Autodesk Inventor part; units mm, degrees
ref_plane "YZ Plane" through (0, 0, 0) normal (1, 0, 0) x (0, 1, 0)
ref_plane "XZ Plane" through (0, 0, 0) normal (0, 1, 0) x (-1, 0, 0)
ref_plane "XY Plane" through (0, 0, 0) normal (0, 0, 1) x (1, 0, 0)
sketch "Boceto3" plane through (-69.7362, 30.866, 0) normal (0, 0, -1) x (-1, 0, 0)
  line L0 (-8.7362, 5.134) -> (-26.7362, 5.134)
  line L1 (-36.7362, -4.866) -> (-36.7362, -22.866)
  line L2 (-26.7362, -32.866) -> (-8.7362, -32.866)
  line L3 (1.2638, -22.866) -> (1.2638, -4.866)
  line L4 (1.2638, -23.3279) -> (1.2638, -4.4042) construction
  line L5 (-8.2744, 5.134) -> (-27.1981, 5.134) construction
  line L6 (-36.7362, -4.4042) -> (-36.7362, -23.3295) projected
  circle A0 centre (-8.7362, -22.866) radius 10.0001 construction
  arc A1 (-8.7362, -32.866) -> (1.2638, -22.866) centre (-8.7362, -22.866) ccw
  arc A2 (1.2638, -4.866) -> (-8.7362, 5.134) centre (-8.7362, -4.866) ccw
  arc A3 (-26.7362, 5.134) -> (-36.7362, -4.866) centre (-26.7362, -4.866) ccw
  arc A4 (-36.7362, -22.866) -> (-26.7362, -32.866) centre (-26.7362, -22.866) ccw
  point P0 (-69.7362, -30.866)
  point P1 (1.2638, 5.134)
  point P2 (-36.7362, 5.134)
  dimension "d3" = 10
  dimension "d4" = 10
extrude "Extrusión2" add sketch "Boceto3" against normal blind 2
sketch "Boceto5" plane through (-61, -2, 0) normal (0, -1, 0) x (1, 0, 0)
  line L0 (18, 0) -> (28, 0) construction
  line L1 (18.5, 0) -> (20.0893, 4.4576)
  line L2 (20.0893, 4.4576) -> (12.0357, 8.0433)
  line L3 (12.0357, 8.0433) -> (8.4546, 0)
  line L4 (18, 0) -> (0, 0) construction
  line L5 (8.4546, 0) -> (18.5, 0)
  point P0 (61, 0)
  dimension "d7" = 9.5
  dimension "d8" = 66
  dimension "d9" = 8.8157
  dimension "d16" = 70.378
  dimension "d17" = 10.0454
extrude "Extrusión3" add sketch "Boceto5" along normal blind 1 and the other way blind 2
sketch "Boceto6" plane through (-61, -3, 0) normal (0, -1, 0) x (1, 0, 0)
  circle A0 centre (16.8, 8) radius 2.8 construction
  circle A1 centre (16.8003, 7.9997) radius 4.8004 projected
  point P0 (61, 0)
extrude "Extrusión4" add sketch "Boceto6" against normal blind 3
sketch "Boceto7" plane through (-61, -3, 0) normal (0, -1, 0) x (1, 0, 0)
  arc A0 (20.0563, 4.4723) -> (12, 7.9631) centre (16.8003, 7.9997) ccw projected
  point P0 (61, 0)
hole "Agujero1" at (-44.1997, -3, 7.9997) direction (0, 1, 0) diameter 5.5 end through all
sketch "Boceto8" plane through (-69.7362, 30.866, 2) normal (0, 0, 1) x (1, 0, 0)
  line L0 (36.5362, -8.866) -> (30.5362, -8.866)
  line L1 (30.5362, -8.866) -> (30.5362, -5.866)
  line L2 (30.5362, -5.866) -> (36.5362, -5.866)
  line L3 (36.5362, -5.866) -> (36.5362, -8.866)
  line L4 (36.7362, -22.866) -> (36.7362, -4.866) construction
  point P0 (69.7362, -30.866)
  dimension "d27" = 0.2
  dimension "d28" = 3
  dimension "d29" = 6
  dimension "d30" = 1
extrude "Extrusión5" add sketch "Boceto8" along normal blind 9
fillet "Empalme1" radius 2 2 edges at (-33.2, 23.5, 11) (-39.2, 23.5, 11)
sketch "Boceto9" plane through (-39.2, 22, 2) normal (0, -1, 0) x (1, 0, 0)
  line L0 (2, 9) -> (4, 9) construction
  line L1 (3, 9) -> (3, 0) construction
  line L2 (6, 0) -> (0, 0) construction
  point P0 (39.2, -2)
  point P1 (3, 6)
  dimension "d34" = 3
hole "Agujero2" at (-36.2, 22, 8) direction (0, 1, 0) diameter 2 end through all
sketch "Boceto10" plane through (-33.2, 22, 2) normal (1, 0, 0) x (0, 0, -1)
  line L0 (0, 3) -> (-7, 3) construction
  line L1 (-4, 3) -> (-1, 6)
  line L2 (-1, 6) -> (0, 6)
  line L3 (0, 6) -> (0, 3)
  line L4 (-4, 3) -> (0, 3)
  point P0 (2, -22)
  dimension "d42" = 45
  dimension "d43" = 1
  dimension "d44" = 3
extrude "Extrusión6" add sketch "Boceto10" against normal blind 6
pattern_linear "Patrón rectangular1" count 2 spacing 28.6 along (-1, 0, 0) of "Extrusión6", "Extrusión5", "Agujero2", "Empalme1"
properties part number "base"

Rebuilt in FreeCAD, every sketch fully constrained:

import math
import FreeCAD as App
import Part
import Sketcher
Q = App.Units.Quantity


def edges_at(feature, points):
    """Names of the edges that pass closest to the given points."""
    edges = feature.Shape.Edges
    near = lambda p: min(range(len(edges)), key=lambda i: edges[i].distToShape(Part.Vertex(*p))[0])
    return sorted({f"Edge{near(p) + 1}" for p in points})

doc = App.newDocument("Part")
params = doc.addObject("Spreadsheet::Sheet", "Params")
for row, (alias, value) in enumerate([
    ("sketch1_radius", "10 mm"),
    ("sketch1_width", "18 mm"),
    ("pad1_length", "2 mm"),
    ("pad2_length", "1 mm"),
    ("pad2_length2", "2 mm"),
    ("pad3_length", "3 mm"),
    ("sketch4_diameter", "5.5 mm"),
    ("hole_diameter", "5.5 mm"),
    ("sketch5_width", "6 mm"),
    ("sketch5_height", "3 mm"),
    ("pad4_length", "9 mm"),
    ("fillet_radius", "2 mm"),
    ("sketch6_diameter", "2 mm"),
    ("hole2_diameter", "2 mm"),
    ("sketch7_width", "3 mm"),
    ("sketch7_height", "1 mm"),
    ("pad5_length", "6 mm"),
    ("linearpattern_pitch", "28.6 mm"),
], start=1):
    params.set(f"A{row}", alias)
    params.set(f"B{row}", "=" + value)
    params.setAlias(f"B{row}", alias)

body = doc.addObject("PartDesign::Body", "Body")

# Sketch on XY plane
sketch1 = body.newObject("Sketcher::SketchObject", "Sketch")
sketch1.AttachmentSupport = (doc.getObject("XY_Plane"), [""])
sketch1.MapMode = "FlatFace"
sketch1.addGeometry([
    Part.ArcOfCircle(Part.Circle(App.Vector(-61, 26, 0), App.Vector(0, 0, 1), 10), math.radians(90), math.radians(180)),  # 0
    Part.LineSegment(App.Vector(-61, 36, 0), App.Vector(-43, 36, 0)),  # 1
    Part.ArcOfCircle(Part.Circle(App.Vector(-43, 26, 0), App.Vector(0, 0, 1), 10), math.radians(0), math.radians(90)),  # 2
    Part.LineSegment(App.Vector(-33, 26, 0), App.Vector(-33, 8, 0)),  # 3
    Part.ArcOfCircle(Part.Circle(App.Vector(-43, 8, 0), App.Vector(0, 0, 1), 10), math.radians(-90), math.radians(0)),  # 4
    Part.LineSegment(App.Vector(-43, -2, 0), App.Vector(-61, -2, 0)),  # 5
    Part.ArcOfCircle(Part.Circle(App.Vector(-61, 8, 0), App.Vector(0, 0, 1), 10), math.radians(180), math.radians(270)),  # 6
    Part.LineSegment(App.Vector(-71, 8, 0), App.Vector(-71, 26, 0)),  # 7
], False)
sketch1.addConstraint([
    Sketcher.Constraint("Tangent", 0, 1, 1, 1),
    Sketcher.Constraint("Tangent", 1, 2, 2, 2),
    Sketcher.Constraint("Tangent", 2, 1, 3, 1),
    Sketcher.Constraint("Tangent", 3, 2, 4, 2),
    Sketcher.Constraint("Tangent", 4, 1, 5, 1),
    Sketcher.Constraint("Tangent", 5, 2, 6, 2),
    Sketcher.Constraint("Tangent", 6, 1, 7, 1),
    Sketcher.Constraint("Tangent", 7, 2, 0, 2),
    Sketcher.Constraint("Horizontal", 1),
    Sketcher.Constraint("Vertical", 3),
    Sketcher.Constraint("Horizontal", 5),
    Sketcher.Constraint("Vertical", 7),
    Sketcher.Constraint("Equal", 0, 2),
    Sketcher.Constraint("Equal", 2, 4),
    Sketcher.Constraint("Equal", 4, 6),
    Sketcher.Constraint("Equal", 5, 3),
    Sketcher.Constraint("Radius", 0, Q("10 mm")),
    Sketcher.Constraint("DistanceX", 1, 1, 1, 2, Q("18 mm")),
    Sketcher.Constraint("DistanceX", 0, 3, -1, 1, Q("61 mm")),
    Sketcher.Constraint("DistanceY", -1, 1, 0, 3, Q("26 mm")),
])
sketch1.setExpression("Constraints[16]", "Params.sketch1_radius")
sketch1.setExpression("Constraints[17]", "Params.sketch1_width")
pad1 = body.newObject("PartDesign::Pad", "Pad")
pad1.Profile = sketch1
pad1.setExpression("Length", "Params.pad1_length")

# Sketch on XZ plane
sketch2 = body.newObject("Sketcher::SketchObject", "Sketch001")
sketch2.AttachmentSupport = (doc.getObject("XZ_Plane"), [""])
sketch2.MapMode = "FlatFace"
sketch2.AttachmentOffset = App.Placement(App.Vector(0, 0, 2), App.Rotation())
sketch2.addGeometry([
    Part.LineSegment(App.Vector(-52.5454, 0, 0), App.Vector(-42.5, 0, 0)),
    Part.LineSegment(App.Vector(-42.5, 0, 0), App.Vector(-40.9107, 4.4576, 0)),
    Part.LineSegment(App.Vector(-40.9107, 4.4576, 0), App.Vector(-48.9643, 8.0433, 0)),
    Part.LineSegment(App.Vector(-48.9643, 8.0433, 0), App.Vector(-52.5454, 0, 0)),
], False)
sketch2.addConstraint([
    Sketcher.Constraint("Coincident", 0, 2, 1, 1),
    Sketcher.Constraint("Coincident", 1, 2, 2, 1),
    Sketcher.Constraint("Coincident", 2, 2, 3, 1),
    Sketcher.Constraint("Coincident", 3, 2, 0, 1),
    Sketcher.Constraint("Horizontal", 0),
    Sketcher.Constraint("PointOnObject", 0, 2, -1),
    Sketcher.Constraint("Perpendicular", 2, 3),
    Sketcher.Constraint("Angle", 2, Q("156 deg")),
    Sketcher.Constraint("DistanceX", 0, 1, 0, 2, Q("10.0454 mm")),
    Sketcher.Constraint("Distance", 2, Q("8.8158 mm")),
    Sketcher.Constraint("DistanceX", 0, 2, -1, 1, Q("42.5 mm")),
    Sketcher.Constraint("DistanceX", 3, 2, 2, 2, Q("3.581 mm")),
])
pad2 = body.newObject("PartDesign::Pad", "Pad001")
pad2.Profile = sketch2
pad2.Type = "TwoLengths"
pad2.setExpression("Length", "Params.pad2_length")
pad2.setExpression("Length2", "Params.pad2_length2")

# Sketch on XZ plane
sketch3 = body.newObject("Sketcher::SketchObject", "Sketch002")
sketch3.AttachmentSupport = (doc.getObject("XZ_Plane"), [""])
sketch3.MapMode = "FlatFace"
sketch3.AttachmentOffset = App.Placement(App.Vector(0, 0, 3), App.Rotation())
sketch3.addGeometry(Part.Circle(App.Vector(-44.1997, 7.9997, 0), App.Vector(0, 0, 1), 4.8004), False)
sketch3.addConstraint([
    Sketcher.Constraint("Diameter", 0, Q("9.6008 mm")),
    Sketcher.Constraint("DistanceX", 0, 3, -1, 1, Q("44.1997 mm")),
    Sketcher.Constraint("DistanceY", -1, 1, 0, 3, Q("7.9997 mm")),
])
pad3 = body.newObject("PartDesign::Pad", "Pad002")
pad3.Profile = sketch3
pad3.setExpression("Length", "Params.pad3_length")
pad3.Reversed = True

# Sketch on XZ plane
sketch4 = body.newObject("Sketcher::SketchObject", "Sketch003")
sketch4.AttachmentSupport = (doc.getObject("XZ_Plane"), [""])
sketch4.MapMode = "FlatFace"
sketch4.AttachmentOffset = App.Placement(App.Vector(0, 0, 3), App.Rotation())
sketch4.addGeometry(Part.Circle(App.Vector(-44.1997, 7.9997, 0), App.Vector(0, 0, 1), 2.75), False)
sketch4.addConstraint([
    Sketcher.Constraint("Diameter", 0, Q("5.5 mm")),
    Sketcher.Constraint("DistanceX", 0, 3, -1, 1, Q("44.1997 mm")),
    Sketcher.Constraint("DistanceY", -1, 1, 0, 3, Q("7.9997 mm")),
])
sketch4.setExpression("Constraints[0]", "Params.sketch4_diameter")
doc.recompute()
hole = body.newObject("PartDesign::Hole", "Hole")
hole.Profile = sketch4
hole.ThreadType = "None"
hole.setExpression("Diameter", "Params.hole_diameter")
hole.DepthType = "ThroughAll"

# Sketch on XY plane
sketch5 = body.newObject("Sketcher::SketchObject", "Sketch004")
sketch5.AttachmentSupport = (doc.getObject("XY_Plane"), [""])
sketch5.MapMode = "FlatFace"
sketch5.AttachmentOffset = App.Placement(App.Vector(0, 0, 2), App.Rotation())
sketch5.addGeometry([
    Part.LineSegment(App.Vector(-39.2, 22, 0), App.Vector(-33.2, 22, 0)),
    Part.LineSegment(App.Vector(-33.2, 22, 0), App.Vector(-33.2, 25, 0)),
    Part.LineSegment(App.Vector(-33.2, 25, 0), App.Vector(-39.2, 25, 0)),
    Part.LineSegment(App.Vector(-39.2, 25, 0), App.Vector(-39.2, 22, 0)),
], False)
sketch5.addConstraint([
    Sketcher.Constraint("Coincident", 0, 2, 1, 1),
    Sketcher.Constraint("Coincident", 1, 2, 2, 1),
    Sketcher.Constraint("Coincident", 2, 2, 3, 1),
    Sketcher.Constraint("Coincident", 3, 2, 0, 1),
    Sketcher.Constraint("Horizontal", 0),
    Sketcher.Constraint("Vertical", 1),
    Sketcher.Constraint("Horizontal", 2),
    Sketcher.Constraint("Vertical", 3),
    Sketcher.Constraint("DistanceX", 0, 1, 0, 2, Q("6 mm")),
    Sketcher.Constraint("DistanceY", 1, 1, 1, 2, Q("3 mm")),
    Sketcher.Constraint("DistanceY", -1, 1, 0, 2, Q("22 mm")),
    Sketcher.Constraint("DistanceX", 0, 2, -1, 1, Q("33.2 mm")),
])
sketch5.setExpression("Constraints[8]", "Params.sketch5_width")
sketch5.setExpression("Constraints[9]", "Params.sketch5_height")
pad4 = body.newObject("PartDesign::Pad", "Pad003")
pad4.Profile = sketch5
pad4.setExpression("Length", "Params.pad4_length")
doc.recompute()

fillet = body.newObject("PartDesign::Fillet", "Fillet")
fillet.Base = (pad4, edges_at(pad4, [(-33.2, 23.5, 11), (-39.2, 23.5, 11)]))
fillet.setExpression("Radius", "Params.fillet_radius")

# Sketch on XZ plane
sketch6 = body.newObject("Sketcher::SketchObject", "Sketch005")
sketch6.AttachmentSupport = (doc.getObject("XZ_Plane"), [""])
sketch6.MapMode = "FlatFace"
sketch6.AttachmentOffset = App.Placement(App.Vector(0, 0, -22), App.Rotation())
sketch6.addGeometry(Part.Circle(App.Vector(-36.2, 8, 0), App.Vector(0, 0, 1), 1), False)
sketch6.addConstraint([
    Sketcher.Constraint("Diameter", 0, Q("2 mm")),
    Sketcher.Constraint("DistanceY", -1, 1, 0, 3, Q("8 mm")),
    Sketcher.Constraint("DistanceX", 0, 3, -1, 1, Q("36.2 mm")),
])
sketch6.setExpression("Constraints[0]", "Params.sketch6_diameter")
doc.recompute()
hole2 = body.newObject("PartDesign::Hole", "Hole001")
hole2.Profile = sketch6
hole2.ThreadType = "None"
hole2.setExpression("Diameter", "Params.hole2_diameter")
hole2.DepthType = "ThroughAll"

# Sketch on YZ plane
sketch7 = body.newObject("Sketcher::SketchObject", "Sketch006")
sketch7.AttachmentSupport = (doc.getObject("YZ_Plane"), [""])
sketch7.MapMode = "FlatFace"
sketch7.AttachmentOffset = App.Placement(App.Vector(0, 0, -33.2), App.Rotation())
sketch7.addGeometry([
    Part.LineSegment(App.Vector(28, 3, 0), App.Vector(25, 6, 0)),
    Part.LineSegment(App.Vector(25, 6, 0), App.Vector(25, 2, 0)),
    Part.LineSegment(App.Vector(25, 2, 0), App.Vector(28, 2, 0)),
    Part.LineSegment(App.Vector(28, 2, 0), App.Vector(28, 3, 0)),
], False)
sketch7.addConstraint([
    Sketcher.Constraint("Coincident", 0, 2, 1, 1),
    Sketcher.Constraint("Coincident", 1, 2, 2, 1),
    Sketcher.Constraint("Coincident", 2, 2, 3, 1),
    Sketcher.Constraint("Coincident", 3, 2, 0, 1),
    Sketcher.Constraint("Vertical", 1),
    Sketcher.Constraint("Horizontal", 2),
    Sketcher.Constraint("Vertical", 3),
    Sketcher.Constraint("DistanceX", 2, 1, 2, 2, Q("3 mm")),
    Sketcher.Constraint("DistanceY", 3, 1, 3, 2, Q("1 mm")),
    Sketcher.Constraint("DistanceY", -1, 1, 3, 2, Q("3 mm")),
    Sketcher.Constraint("DistanceY", 3, 2, 0, 2, Q("3 mm")),
    Sketcher.Constraint("DistanceX", -1, 1, 0, 2, Q("25 mm")),
])
sketch7.setExpression("Constraints[7]", "Params.sketch7_width")
sketch7.setExpression("Constraints[8]", "Params.sketch7_height")
pad5 = body.newObject("PartDesign::Pad", "Pad004")
pad5.Profile = sketch7
pad5.setExpression("Length", "Params.pad5_length")
pad5.Reversed = True
doc.recompute()

linearpattern = body.newObject("PartDesign::LinearPattern", "LinearPattern")
linearpattern.Originals = [pad5, pad4, hole2, fillet]
linearpattern.Direction = (doc.getObject("X_Axis"), [""])
linearpattern.Mode = "offset"
linearpattern.setExpression("Offset", "Params.linearpattern_pitch")
linearpattern.Occurrences = 2
linearpattern.Reversed = True
body.Tip = linearpattern

doc.recompute()
